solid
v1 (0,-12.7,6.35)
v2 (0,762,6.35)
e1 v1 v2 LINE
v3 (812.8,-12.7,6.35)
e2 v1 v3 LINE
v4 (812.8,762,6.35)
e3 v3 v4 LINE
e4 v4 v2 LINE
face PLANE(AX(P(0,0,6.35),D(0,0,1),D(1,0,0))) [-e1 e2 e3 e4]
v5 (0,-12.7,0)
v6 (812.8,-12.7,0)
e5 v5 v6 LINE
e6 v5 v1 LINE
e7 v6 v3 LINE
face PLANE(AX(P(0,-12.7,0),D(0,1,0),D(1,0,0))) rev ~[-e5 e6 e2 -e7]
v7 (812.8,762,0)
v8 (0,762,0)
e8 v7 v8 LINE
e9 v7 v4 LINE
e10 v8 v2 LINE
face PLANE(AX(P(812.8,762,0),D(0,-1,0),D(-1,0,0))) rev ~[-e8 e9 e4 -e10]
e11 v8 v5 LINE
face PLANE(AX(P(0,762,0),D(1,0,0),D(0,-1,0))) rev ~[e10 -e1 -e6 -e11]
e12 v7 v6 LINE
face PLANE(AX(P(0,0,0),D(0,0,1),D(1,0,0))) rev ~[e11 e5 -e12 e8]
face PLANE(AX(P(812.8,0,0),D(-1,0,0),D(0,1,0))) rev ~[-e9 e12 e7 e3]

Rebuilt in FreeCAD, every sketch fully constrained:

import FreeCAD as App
import Part
import Sketcher

V = App.Vector
Q = App.Units.Quantity


def add_polygon(sketch, points):
    """Adds a closed chain of lines whose ends are joined by coincident constraints."""
    first, n = sketch.GeometryCount, len(points)
    for a, b in zip(points, points[1:] + points[:1]):
        sketch.addGeometry(Part.LineSegment(App.Vector(*a, 0), App.Vector(*b, 0)), False)
    for i in range(n):
        sketch.addConstraint(Sketcher.Constraint("Coincident", first + i, 2, first + (i + 1) % n, 1))

doc = App.newDocument("Part")
params = doc.addObject("Spreadsheet::Sheet", "Params")
for row, (alias, value) in enumerate([
    ("sketch1_width", "32 in"),
    ("sketch1_height", "30 in"),
    ("pad1_length", "0.25 in"),
    ("sketch2_height", "0.5 in"),
    ("sketch2_width", "32 in"),
    ("pad2_length", "0.25 in"),
], start=1):
    params.set(f"A{row}", alias)
    params.set(f"B{row}", "=" + value)
    params.setAlias(f"B{row}", alias)

body = doc.addObject("PartDesign::Body", "Body")

sketch1 = body.newObject("Sketcher::SketchObject", "Sketch")
sketch1.AttachmentSupport = (doc.getObject("XY_Plane"), [""])
sketch1.MapMode = "FlatFace"
add_polygon(sketch1, [(0, 762), (0, 0), (813, 0), (813, 762)])
sketch1.addConstraint([
    Sketcher.Constraint("Vertical", 0),
    Sketcher.Constraint("Horizontal", 1),
    Sketcher.Constraint("Vertical", 2),
    Sketcher.Constraint("Horizontal", 3),
    Sketcher.Constraint("Coincident", 0, 2, -1, 1),
    Sketcher.Constraint("DistanceX", 1, 1, 1, 2, Q("32 in")),
    Sketcher.Constraint("DistanceY", 0, 2, 0, 1, Q("30 in")),
])
sketch1.setExpression("Constraints[9]", "Params.sketch1_width")
sketch1.setExpression("Constraints[10]", "Params.sketch1_height")
pad1 = body.newObject("PartDesign::Pad", "Pad")
pad1.Profile = sketch1
pad1.setExpression("Length", "Params.pad1_length")

sketch2 = body.newObject("Sketcher::SketchObject", "Sketch001")
sketch2.AttachmentSupport = (doc.getObject("XY_Plane"), [""])
sketch2.MapMode = "FlatFace"
add_polygon(sketch2, [(813, 0), (0, 0), (0, -13), (813, -13)])
sketch2.addConstraint([
    Sketcher.Constraint("Horizontal", 0),
    Sketcher.Constraint("Vertical", 1),
    Sketcher.Constraint("Horizontal", 2),
    Sketcher.Constraint("Vertical", 3),
    Sketcher.Constraint("Coincident", 0, 2, -1, 1),
    Sketcher.Constraint("DistanceY", 1, 2, 1, 1, Q("0.5 in")),
    Sketcher.Constraint("DistanceX", 0, 2, 0, 1, Q("32 in")),
])
sketch2.setExpression("Constraints[9]", "Params.sketch2_height")
sketch2.setExpression("Constraints[10]", "Params.sketch2_width")
pad2 = body.newObject("PartDesign::Pad", "Pad001")
pad2.Profile = sketch2
pad2.setExpression("Length", "Params.pad2_length")

doc.recompute()
